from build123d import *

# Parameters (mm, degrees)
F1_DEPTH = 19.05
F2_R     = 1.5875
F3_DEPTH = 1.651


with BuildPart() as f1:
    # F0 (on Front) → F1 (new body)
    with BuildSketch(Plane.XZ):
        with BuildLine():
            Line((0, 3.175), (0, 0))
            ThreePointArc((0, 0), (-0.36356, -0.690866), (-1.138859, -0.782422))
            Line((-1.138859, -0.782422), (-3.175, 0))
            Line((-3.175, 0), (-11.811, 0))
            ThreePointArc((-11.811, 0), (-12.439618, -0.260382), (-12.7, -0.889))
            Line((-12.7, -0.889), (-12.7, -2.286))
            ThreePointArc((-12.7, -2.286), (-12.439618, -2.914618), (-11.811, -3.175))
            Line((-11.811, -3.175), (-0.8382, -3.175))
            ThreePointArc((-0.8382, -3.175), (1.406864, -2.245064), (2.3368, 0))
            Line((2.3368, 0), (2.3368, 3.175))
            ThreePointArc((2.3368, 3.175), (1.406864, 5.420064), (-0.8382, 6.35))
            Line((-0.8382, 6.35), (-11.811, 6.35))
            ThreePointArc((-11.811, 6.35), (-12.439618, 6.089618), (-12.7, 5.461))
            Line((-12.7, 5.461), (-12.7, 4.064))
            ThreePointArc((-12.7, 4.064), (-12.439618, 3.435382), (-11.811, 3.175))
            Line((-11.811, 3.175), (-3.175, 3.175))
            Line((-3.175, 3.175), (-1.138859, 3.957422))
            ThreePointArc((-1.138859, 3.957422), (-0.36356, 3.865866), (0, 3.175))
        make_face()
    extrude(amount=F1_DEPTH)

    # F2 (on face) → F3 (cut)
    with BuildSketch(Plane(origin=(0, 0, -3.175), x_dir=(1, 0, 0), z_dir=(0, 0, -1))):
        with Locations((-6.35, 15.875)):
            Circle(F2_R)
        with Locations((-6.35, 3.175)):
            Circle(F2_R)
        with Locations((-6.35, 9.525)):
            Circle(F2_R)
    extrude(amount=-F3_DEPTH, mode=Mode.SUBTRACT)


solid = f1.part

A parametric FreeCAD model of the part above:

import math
import FreeCAD as App
import Part
import Sketcher

V = App.Vector
Q = App.Units.Quantity

doc = App.newDocument("Part")
body = doc.addObject("PartDesign::Body", "Body")

# Sketch on XZ plane
sketch1 = body.newObject("Sketcher::SketchObject", "Sketch")
sketch1.AttachmentSupport = (doc.getObject("XZ_Plane"), [""])
sketch1.MapMode = "FlatFace"
sketch1.addGeometry(Part.LineSegment(V(0, 3.2, 0), V(0, 0, 0)), False)
sketch1.addGeometry(Part.ArcOfCircle(Part.Circle(V(-0.8, 0, 0), V(0, 0, 1), 0.8), math.radians(-111), math.radians(0)), False)
sketch1.addGeometry(Part.LineSegment(V(-1.1, -0.8, 0), V(-3.2, 0, 0)), False)
sketch1.addGeometry(Part.LineSegment(V(-3.2, 0, 0), V(-11.8, 0, 0)), False)
sketch1.addGeometry(Part.ArcOfCircle(Part.Circle(V(-11.8, -0.9, 0), V(0, 0, 1), 0.9), math.radians(90), math.radians(180)), False)
sketch1.addGeometry(Part.LineSegment(V(-12.7, -0.9, 0), V(-12.7, -2.3, 0)), False)
sketch1.addGeometry(Part.ArcOfCircle(Part.Circle(V(-11.8, -2.3, 0), V(0, 0, 1), 0.9), math.radians(180), math.radians(270)), False)
sketch1.addGeometry(Part.LineSegment(V(-11.8, -3.2, 0), V(-0.8, -3.2, 0)), False)
sketch1.addGeometry(Part.ArcOfCircle(Part.Circle(V(-0.8, 0, 0), V(0, 0, 1), 3.2), math.radians(-90), math.radians(0)), False)
sketch1.addGeometry(Part.LineSegment(V(2.3, 0, 0), V(2.3, 3.2, 0)), False)
sketch1.addGeometry(Part.ArcOfCircle(Part.Circle(V(-0.8, 3.2, 0), V(0, 0, 1), 3.2), math.radians(0), math.radians(90)), False)
sketch1.addGeometry(Part.LineSegment(V(-0.8, 6.3, 0), V(-11.8, 6.3, 0)), False)
sketch1.addGeometry(Part.ArcOfCircle(Part.Circle(V(-11.8, 5.5, 0), V(0, 0, 1), 0.9), math.radians(90), math.radians(180)), False)
sketch1.addGeometry(Part.LineSegment(V(-12.7, 5.5, 0), V(-12.7, 4.1, 0)), False)
sketch1.addGeometry(Part.ArcOfCircle(Part.Circle(V(-11.8, 4.1, 0), V(0, 0, 1), 0.9), math.radians(180), math.radians(270)), False)
sketch1.addGeometry(Part.LineSegment(V(-11.8, 3.2, 0), V(-3.2, 3.2, 0)), False)
sketch1.addGeometry(Part.LineSegment(V(-3.2, 3.2, 0), V(-1.1, 4, 0)), False)
sketch1.addGeometry(Part.ArcOfCircle(Part.Circle(V(-0.8, 3.2, 0), V(0, 0, 1), 0.8), math.radians(0), math.radians(111)), False)
sketch1.addConstraint(Sketcher.Constraint("Tangent", 0, 2, 1, 2))
sketch1.addConstraint(Sketcher.Constraint("Tangent", 1, 1, 2, 1))
sketch1.addConstraint(Sketcher.Constraint("Coincident", 2, 2, 3, 1))
sketch1.addConstraint(Sketcher.Constraint("Tangent", 3, 2, 4, 1))
sketch1.addConstraint(Sketcher.Constraint("Tangent", 4, 2, 5, 1))
sketch1.addConstraint(Sketcher.Constraint("Tangent", 5, 2, 6, 1))
sketch1.addConstraint(Sketcher.Constraint("Tangent", 6, 2, 7, 1))
sketch1.addConstraint(Sketcher.Constraint("Tangent", 7, 2, 8, 1))
sketch1.addConstraint(Sketcher.Constraint("Tangent", 8, 2, 9, 1))
sketch1.addConstraint(Sketcher.Constraint("Tangent", 9, 2, 10, 1))
sketch1.addConstraint(Sketcher.Constraint("Tangent", 10, 2, 11, 1))
sketch1.addConstraint(Sketcher.Constraint("Tangent", 11, 2, 12, 1))
sketch1.addConstraint(Sketcher.Constraint("Tangent", 12, 2, 13, 1))
sketch1.addConstraint(Sketcher.Constraint("Tangent", 13, 2, 14, 1))
sketch1.addConstraint(Sketcher.Constraint("Tangent", 14, 2, 15, 1))
sketch1.addConstraint(Sketcher.Constraint("Coincident", 15, 2, 16, 1))
sketch1.addConstraint(Sketcher.Constraint("Tangent", 16, 2, 17, 2))
sketch1.addConstraint(Sketcher.Constraint("Tangent", 17, 1, 0, 1))
sketch1.addConstraint(Sketcher.Constraint("Vertical", 0))
sketch1.addConstraint(Sketcher.Constraint("Horizontal", 3))
sketch1.addConstraint(Sketcher.Constraint("Vertical", 5))
sketch1.addConstraint(Sketcher.Constraint("Horizontal", 7))
sketch1.addConstraint(Sketcher.Constraint("Vertical", 9))
sketch1.addConstraint(Sketcher.Constraint("Horizontal", 11))
sketch1.addConstraint(Sketcher.Constraint("Vertical", 13))
sketch1.addConstraint(Sketcher.Constraint("Horizontal", 15))
sketch1.addConstraint(Sketcher.Constraint("Coincident", 0, 2, -1, 1))
sketch1.addConstraint(Sketcher.Constraint("Coincident", 8, 3, 1, 3))
sketch1.addConstraint(Sketcher.Constraint("Coincident", 17, 3, 10, 3))
sketch1.addConstraint(Sketcher.Constraint("Equal", 4, 6))
sketch1.addConstraint(Sketcher.Constraint("Equal", 8, 10))
sketch1.addConstraint(Sketcher.Constraint("Equal", 6, 12))
sketch1.addConstraint(Sketcher.Constraint("Equal", 12, 14))
sketch1.addConstraint(Sketcher.Constraint("Symmetric", 6, 2, 14, 2, -1))
sketch1.addConstraint(Sketcher.Constraint("PointOnObject", 2, 2, -1))
sketch1.addConstraint(Sketcher.Constraint("Horizontal", 9, 2, 14, 2))
sketch1.addConstraint(Sketcher.Constraint("Vertical", 2, 2, 15, 2))
sketch1.addConstraint(Sketcher.Constraint("Radius", 1, Q("0.033 in")))
sketch1.addConstraint(Sketcher.Constraint("Radius", 4, Q("0.035 in")))
sketch1.addConstraint(Sketcher.Constraint("Radius", 8, Q("0.125 in")))
sketch1.addConstraint(Sketcher.Constraint("DistanceX", 3, 2, 3, 1, Q("0.34 in")))
sketch1.addConstraint(Sketcher.Constraint("DistanceX", 4, 2, -1, 1, Q("0.5 in")))
pad1 = body.newObject("PartDesign::Pad", "Pad")
pad1.Profile = sketch1
pad1.Length = Q("0.75 in")

# Sketch on XY plane
sketch2 = body.newObject("Sketcher::SketchObject", "Sketch001")
sketch2.AttachmentSupport = (doc.getObject("XY_Plane"), [""])
sketch2.MapMode = "FlatFace"
sketch2.AttachmentOffset = App.Placement(V(0, 0, -0.125 * 25.4), App.Rotation())
sketch2.addGeometry(Part.Circle(V(-6.3, -15.9, 0), V(0, 0, 1), 1.6), False)
sketch2.addGeometry(Part.Circle(V(-6.3, -3.2, 0), V(0, 0, 1), 1.6), False)
sketch2.addGeometry(Part.Circle(V(-6.3, -9.5, 0), V(0, 0, 1), 1.6), False)
sketch2.addConstraint(Sketcher.Constraint("Equal", 0, 1))
sketch2.addConstraint(Sketcher.Constraint("Equal", 1, 2))
sketch2.addConstraint(Sketcher.Constraint("Vertical", 0, 3, 1, 3))
sketch2.addConstraint(Sketcher.Constraint("Vertical", 1, 3, 2, 3))
sketch2.addConstraint(Sketcher.Constraint("Diameter", 0, Q("0.125 in")))
sketch2.addConstraint(Sketcher.Constraint("DistanceY", 0, 3, 1, 3, Q("0.5 in")))
sketch2.addConstraint(Sketcher.Constraint("DistanceX", 0, 3, -1, 1, Q("0.25 in")))
sketch2.addConstraint(Sketcher.Constraint("DistanceY", 0, 3, 2, 3, Q("0.25 in")))
sketch2.addConstraint(Sketcher.Constraint("DistanceY", 0, 3, -1, 1, Q("0.625 in")))
pocket1 = body.newObject("PartDesign::Pocket", "Pocket")
pocket1.Profile = sketch2
pocket1.Length = Q("0.065 in")
pocket1.Reversed = True

doc.recompute()
